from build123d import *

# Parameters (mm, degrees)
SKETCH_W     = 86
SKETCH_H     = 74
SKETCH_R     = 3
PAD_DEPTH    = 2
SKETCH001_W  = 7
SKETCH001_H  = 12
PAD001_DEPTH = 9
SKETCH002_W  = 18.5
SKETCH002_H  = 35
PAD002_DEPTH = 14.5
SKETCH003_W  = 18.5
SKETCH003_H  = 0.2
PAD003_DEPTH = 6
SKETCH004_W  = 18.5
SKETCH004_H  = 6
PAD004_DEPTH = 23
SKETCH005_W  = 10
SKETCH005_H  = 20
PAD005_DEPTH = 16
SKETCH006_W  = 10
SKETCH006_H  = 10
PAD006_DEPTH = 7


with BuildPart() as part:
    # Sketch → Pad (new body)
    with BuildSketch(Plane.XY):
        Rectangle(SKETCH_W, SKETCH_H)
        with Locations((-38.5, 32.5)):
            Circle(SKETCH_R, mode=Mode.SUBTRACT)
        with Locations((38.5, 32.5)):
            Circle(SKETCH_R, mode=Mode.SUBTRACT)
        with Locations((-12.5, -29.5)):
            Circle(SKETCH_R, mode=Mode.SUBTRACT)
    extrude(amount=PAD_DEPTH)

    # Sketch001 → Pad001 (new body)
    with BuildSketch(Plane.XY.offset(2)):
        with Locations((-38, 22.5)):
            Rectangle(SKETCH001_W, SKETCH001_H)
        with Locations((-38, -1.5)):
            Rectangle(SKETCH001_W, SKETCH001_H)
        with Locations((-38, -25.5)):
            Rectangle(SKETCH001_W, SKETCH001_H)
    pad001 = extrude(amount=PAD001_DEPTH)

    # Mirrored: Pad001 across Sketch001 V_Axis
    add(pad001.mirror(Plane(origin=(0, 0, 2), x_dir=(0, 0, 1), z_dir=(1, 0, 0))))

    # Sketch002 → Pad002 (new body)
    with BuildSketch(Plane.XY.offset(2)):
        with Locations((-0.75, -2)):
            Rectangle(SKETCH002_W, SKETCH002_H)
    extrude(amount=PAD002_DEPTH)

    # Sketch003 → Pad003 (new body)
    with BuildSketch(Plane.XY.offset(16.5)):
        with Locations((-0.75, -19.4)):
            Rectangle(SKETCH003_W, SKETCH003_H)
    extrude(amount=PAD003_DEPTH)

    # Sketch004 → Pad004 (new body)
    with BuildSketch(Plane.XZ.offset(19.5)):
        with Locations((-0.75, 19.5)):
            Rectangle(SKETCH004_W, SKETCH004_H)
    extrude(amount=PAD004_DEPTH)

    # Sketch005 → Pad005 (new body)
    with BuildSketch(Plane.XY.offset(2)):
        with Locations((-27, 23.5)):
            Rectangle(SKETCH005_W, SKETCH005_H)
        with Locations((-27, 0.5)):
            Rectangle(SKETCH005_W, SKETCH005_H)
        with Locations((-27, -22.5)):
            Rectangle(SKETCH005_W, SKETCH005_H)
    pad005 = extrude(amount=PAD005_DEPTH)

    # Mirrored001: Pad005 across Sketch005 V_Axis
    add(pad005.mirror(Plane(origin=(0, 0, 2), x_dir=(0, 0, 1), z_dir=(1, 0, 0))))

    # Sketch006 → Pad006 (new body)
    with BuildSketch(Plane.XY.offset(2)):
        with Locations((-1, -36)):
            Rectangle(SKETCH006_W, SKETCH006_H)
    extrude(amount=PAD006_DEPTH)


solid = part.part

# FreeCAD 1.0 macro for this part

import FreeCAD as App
import Part
import Sketcher

doc = App.newDocument("Part")
params = doc.addObject("Spreadsheet::Sheet", "Params")
for row, (alias, value) in enumerate([
    ("sketch1_diameter", "6 mm"),
    ("sketch1_width", "86 mm"),
    ("sketch1_height", "74 mm"),
    ("pad1_length", "2 mm"),
    ("sketch2_width", "7 mm"),
    ("sketch2_height", "12 mm"),
    ("pad2_length", "9 mm"),
    ("sketch3_height", "35 mm"),
    ("sketch3_width", "18.5 mm"),
    ("pad3_length", "14.5 mm"),
    ("sketch4_width", "18.5 mm"),
    ("sketch4_height", "0.2 mm"),
    ("pad4_length", "6 mm"),
    ("sketch5_height", "6 mm"),
    ("sketch5_width", "18.5 mm"),
    ("pad5_length", "23 mm"),
    ("sketch6_width", "10 mm"),
    ("sketch6_height", "20 mm"),
    ("pad6_length", "16 mm"),
    ("sketch7_width", "10 mm"),
    ("pad7_length", "7 mm"),
], start=1):
    params.set(f"A{row}", alias)
    params.set(f"B{row}", "=" + value)
    params.setAlias(f"B{row}", alias)

body = doc.addObject("PartDesign::Body", "Body")

sketch1 = body.newObject("Sketcher::SketchObject", "Sketch")
sketch1.AttachmentSupport = (doc.getObject("XY_Plane"), [""])
sketch1.MapMode = "FlatFace"
sketch1.addGeometry([
    Part.LineSegment(App.Vector(-43, 37, 0), App.Vector(-43, -37, 0)),
    Part.LineSegment(App.Vector(-43, -37, 0), App.Vector(43, -37, 0)),
    Part.LineSegment(App.Vector(43, -37, 0), App.Vector(43, 37, 0)),
    Part.LineSegment(App.Vector(43, 37, 0), App.Vector(-43, 37, 0)),
    Part.Circle(App.Vector(-12.5, -29.5, 0), App.Vector(0, 0, 1), 3),
    Part.Circle(App.Vector(-38.5, 32.5, 0), App.Vector(0, 0, 1), 3),
    Part.Circle(App.Vector(38.5, 32.5, 0), App.Vector(0, 0, 1), 3),
], False)
sketch1.addConstraint([
    Sketcher.Constraint("Coincident", 0, 2, 1, 1),
    Sketcher.Constraint("Coincident", 1, 2, 2, 1),
    Sketcher.Constraint("Coincident", 2, 2, 3, 1),
    Sketcher.Constraint("Coincident", 3, 2, 0, 1),
    Sketcher.Constraint("Vertical", 0),
    Sketcher.Constraint("Horizontal", 1),
    Sketcher.Constraint("Vertical", 2),
    Sketcher.Constraint("Horizontal", 3),
    Sketcher.Constraint("Equal", 4, 5),
    Sketcher.Constraint("Equal", 5, 6),
    Sketcher.Constraint("Symmetric", 0, 2, 2, 2, -1, 1),
    Sketcher.Constraint("Symmetric", 5, 3, 6, 3, -2),
    Sketcher.Constraint("Diameter", 4, 6.0),
    Sketcher.Constraint("DistanceX", 1, 1, 1, 2, 86.0),
    Sketcher.Constraint("DistanceY", 0, 2, 0, 1, 74.0),
    Sketcher.Constraint("DistanceX", 5, 3, 4, 3, 26.0),
    Sketcher.Constraint("DistanceY", 4, 3, 5, 3, 62.0),
    Sketcher.Constraint("DistanceX", 5, 3, 6, 3, 77.0),
    Sketcher.Constraint("DistanceY", 4, 3, -1, 1, 29.5),
])
sketch1.setExpression("Constraints[12]", "Params.sketch1_diameter")
sketch1.setExpression("Constraints[13]", "Params.sketch1_width")
sketch1.setExpression("Constraints[14]", "Params.sketch1_height")
pad1 = body.newObject("PartDesign::Pad", "Pad")
pad1.Profile = sketch1
pad1.setExpression("Length", "Params.pad1_length")

sketch2 = body.newObject("Sketcher::SketchObject", "Sketch001")
sketch2.AttachmentSupport = (doc.getObject("XY_Plane"), [""])
sketch2.MapMode = "FlatFace"
sketch2.AttachmentOffset = App.Placement(App.Vector(0, 0, 2), App.Rotation())
sketch2.addGeometry([
    Part.LineSegment(App.Vector(-42, 28, 0), App.Vector(-42, 16, 0)),
    Part.LineSegment(App.Vector(-42, 16, 0), App.Vector(-34, 16, 0)),
    Part.LineSegment(App.Vector(-34, 16, 0), App.Vector(-34, 28, 0)),
    Part.LineSegment(App.Vector(-34, 28, 0), App.Vector(-42, 28, 0)),
    Part.LineSegment(App.Vector(-42, 4, 0), App.Vector(-42, -8, 0)),
    Part.LineSegment(App.Vector(-42, -8, 0), App.Vector(-34, -8, 0)),
    Part.LineSegment(App.Vector(-34, -8, 0), App.Vector(-34, 4, 0)),
    Part.LineSegment(App.Vector(-34, 4, 0), App.Vector(-42, 4, 0)),
    Part.LineSegment(App.Vector(-42, -20, 0), App.Vector(-42, -32, 0)),
    Part.LineSegment(App.Vector(-42, -32, 0), App.Vector(-34, -32, 0)),
    Part.LineSegment(App.Vector(-34, -32, 0), App.Vector(-34, -20, 0)),
    Part.LineSegment(App.Vector(-34, -20, 0), App.Vector(-42, -20, 0)),
], False)
sketch2.addConstraint([
    Sketcher.Constraint("Coincident", 0, 2, 1, 1),
    Sketcher.Constraint("Coincident", 1, 2, 2, 1),
    Sketcher.Constraint("Coincident", 2, 2, 3, 1),
    Sketcher.Constraint("Coincident", 3, 2, 0, 1),
    Sketcher.Constraint("Coincident", 4, 2, 5, 1),
    Sketcher.Constraint("Coincident", 5, 2, 6, 1),
    Sketcher.Constraint("Coincident", 6, 2, 7, 1),
    Sketcher.Constraint("Coincident", 7, 2, 4, 1),
    Sketcher.Constraint("Coincident", 8, 2, 9, 1),
    Sketcher.Constraint("Coincident", 9, 2, 10, 1),
    Sketcher.Constraint("Coincident", 10, 2, 11, 1),
    Sketcher.Constraint("Coincident", 11, 2, 8, 1),
    Sketcher.Constraint("Vertical", 0),
    Sketcher.Constraint("Horizontal", 1),
    Sketcher.Constraint("Vertical", 2),
    Sketcher.Constraint("Horizontal", 3),
    Sketcher.Constraint("Vertical", 4),
    Sketcher.Constraint("Horizontal", 5),
    Sketcher.Constraint("Vertical", 6),
    Sketcher.Constraint("Horizontal", 7),
    Sketcher.Constraint("Vertical", 8),
    Sketcher.Constraint("Horizontal", 9),
    Sketcher.Constraint("Vertical", 10),
    Sketcher.Constraint("Horizontal", 11),
    Sketcher.Constraint("Vertical", 3, 2, 4, 2),
    Sketcher.Constraint("Vertical", 2, 2, 5, 2),
    Sketcher.Constraint("Vertical", 7, 2, 8, 2),
    Sketcher.Constraint("Vertical", 6, 2, 9, 2),
    Sketcher.Constraint("Equal", 2, 4),
    Sketcher.Constraint("Equal", 6, 8),
    Sketcher.Constraint("DistanceX", 1, 1, 1, 2, 7.0),
    Sketcher.Constraint("DistanceY", 0, 2, 0, 1, 12.0),
    Sketcher.Constraint("DistanceY", 4, 2, 0, 2, 24.0),
    Sketcher.Constraint("DistanceY", 8, 2, 4, 2, 24.0),
    Sketcher.Constraint("DistanceX", 0, 2, -1, 1, 41.5),
    Sketcher.Constraint("DistanceY", -1, 1, 0, 2, 16.5),
])
sketch2.setExpression("Constraints[30]", "Params.sketch2_width")
sketch2.setExpression("Constraints[31]", "Params.sketch2_height")
pad2 = body.newObject("PartDesign::Pad", "Pad001")
pad2.Profile = sketch2
pad2.setExpression("Length", "Params.pad2_length")
doc.recompute()

mirrored = body.newObject("PartDesign::Mirrored", "Mirrored")
mirrored.Originals = [pad2]
mirrored.MirrorPlane = (doc.getObject("YZ_Plane"), [""])
body.Tip = mirrored

sketch3 = body.newObject("Sketcher::SketchObject", "Sketch002")
sketch3.AttachmentSupport = (doc.getObject("XY_Plane"), [""])
sketch3.MapMode = "FlatFace"
sketch3.AttachmentOffset = App.Placement(App.Vector(0, 0, 2), App.Rotation())
sketch3.addGeometry([
    Part.LineSegment(App.Vector(-10, 16, 0), App.Vector(-10, -20, 0)),
    Part.LineSegment(App.Vector(-10, -20, 0), App.Vector(8, -20, 0)),
    Part.LineSegment(App.Vector(8, -20, 0), App.Vector(8, 16, 0)),
    Part.LineSegment(App.Vector(8, 16, 0), App.Vector(-10, 16, 0)),
], False)
sketch3.addConstraint([
    Sketcher.Constraint("Coincident", 0, 2, 1, 1),
    Sketcher.Constraint("Coincident", 1, 2, 2, 1),
    Sketcher.Constraint("Coincident", 2, 2, 3, 1),
    Sketcher.Constraint("Coincident", 3, 2, 0, 1),
    Sketcher.Constraint("Vertical", 0),
    Sketcher.Constraint("Horizontal", 1),
    Sketcher.Constraint("Vertical", 2),
    Sketcher.Constraint("Horizontal", 3),
    Sketcher.Constraint("DistanceY", 0, 2, 0, 1, 35.0),
    Sketcher.Constraint("DistanceX", 1, 1, 1, 2, 18.5),
    Sketcher.Constraint("DistanceX", 0, 2, -1, 1, 10.0),
    Sketcher.Constraint("DistanceY", 0, 2, -1, 1, 19.5),
])
sketch3.setExpression("Constraints[8]", "Params.sketch3_height")
sketch3.setExpression("Constraints[9]", "Params.sketch3_width")
pad3 = body.newObject("PartDesign::Pad", "Pad002")
pad3.Profile = sketch3
pad3.setExpression("Length", "Params.pad3_length")

sketch4 = body.newObject("Sketcher::SketchObject", "Sketch003")
sketch4.AttachmentSupport = (doc.getObject("XY_Plane"), [""])
sketch4.MapMode = "FlatFace"
sketch4.AttachmentOffset = App.Placement(App.Vector(0, 0, 16.5), App.Rotation())
sketch4.addGeometry([
    Part.LineSegment(App.Vector(-10, -19.3, 0), App.Vector(-10, -19.5, 0)),
    Part.LineSegment(App.Vector(-10, -19.5, 0), App.Vector(8.5, -19.5, 0)),
    Part.LineSegment(App.Vector(8.5, -19.5, 0), App.Vector(8.5, -19.3, 0)),
    Part.LineSegment(App.Vector(8.5, -19.3, 0), App.Vector(-10, -19.3, 0)),
], False)
sketch4.addConstraint([
    Sketcher.Constraint("Coincident", 0, 2, 1, 1),
    Sketcher.Constraint("Coincident", 1, 2, 2, 1),
    Sketcher.Constraint("Coincident", 2, 2, 3, 1),
    Sketcher.Constraint("Coincident", 3, 2, 0, 1),
    Sketcher.Constraint("Vertical", 0),
    Sketcher.Constraint("Horizontal", 1),
    Sketcher.Constraint("Vertical", 2),
    Sketcher.Constraint("Horizontal", 3),
    Sketcher.Constraint("DistanceX", 1, 1, 1, 2, 18.5),
    Sketcher.Constraint("DistanceY", 0, 2, 0, 1, 0.2),
    Sketcher.Constraint("DistanceX", 0, 2, -1, 1, 10.0),
    Sketcher.Constraint("DistanceY", 0, 2, -1, 1, 19.5),
])
sketch4.setExpression("Constraints[8]", "Params.sketch4_width")
sketch4.setExpression("Constraints[9]", "Params.sketch4_height")
pad4 = body.newObject("PartDesign::Pad", "Pad003")
pad4.Profile = sketch4
pad4.setExpression("Length", "Params.pad4_length")

sketch5 = body.newObject("Sketcher::SketchObject", "Sketch004")
sketch5.AttachmentSupport = (doc.getObject("XZ_Plane"), [""])
sketch5.MapMode = "FlatFace"
sketch5.AttachmentOffset = App.Placement(App.Vector(0, 0, 19.5), App.Rotation())
sketch5.addGeometry([
    Part.LineSegment(App.Vector(-10, 22, 0), App.Vector(-10, 16, 0)),
    Part.LineSegment(App.Vector(-10, 16, 0), App.Vector(8, 16, 0)),
    Part.LineSegment(App.Vector(8, 16, 0), App.Vector(8, 22, 0)),
    Part.LineSegment(App.Vector(8, 22, 0), App.Vector(-10, 22, 0)),
], False)
sketch5.addConstraint([
    Sketcher.Constraint("Coincident", 0, 2, 1, 1),
    Sketcher.Constraint("Coincident", 1, 2, 2, 1),
    Sketcher.Constraint("Coincident", 2, 2, 3, 1),
    Sketcher.Constraint("Coincident", 3, 2, 0, 1),
    Sketcher.Constraint("Vertical", 0),
    Sketcher.Constraint("Horizontal", 1),
    Sketcher.Constraint("Vertical", 2),
    Sketcher.Constraint("Horizontal", 3),
    Sketcher.Constraint("DistanceY", 0, 2, 0, 1, 6.0),
    Sketcher.Constraint("DistanceX", 1, 1, 1, 2, 18.5),
    Sketcher.Constraint("DistanceX", 0, 2, -1, 1, 10.0),
    Sketcher.Constraint("DistanceY", -1, 1, 0, 2, 16.5),
])
sketch5.setExpression("Constraints[8]", "Params.sketch5_height")
sketch5.setExpression("Constraints[9]", "Params.sketch5_width")
pad5 = body.newObject("PartDesign::Pad", "Pad004")
pad5.Profile = sketch5
pad5.setExpression("Length", "Params.pad5_length")

sketch6 = body.newObject("Sketcher::SketchObject", "Sketch005")
sketch6.AttachmentSupport = (doc.getObject("XY_Plane"), [""])
sketch6.MapMode = "FlatFace"
sketch6.AttachmentOffset = App.Placement(App.Vector(0, 0, 2), App.Rotation())
sketch6.addGeometry([
    Part.LineSegment(App.Vector(-32, 34, 0), App.Vector(-32, 14, 0)),
    Part.LineSegment(App.Vector(-32, 14, 0), App.Vector(-22, 14, 0)),
    Part.LineSegment(App.Vector(-22, 14, 0), App.Vector(-22, 34, 0)),
    Part.LineSegment(App.Vector(-22, 34, 0), App.Vector(-32, 34, 0)),
    Part.LineSegment(App.Vector(-32, 10, 0), App.Vector(-32, -10, 0)),
    Part.LineSegment(App.Vector(-32, -10, 0), App.Vector(-22, -10, 0)),
    Part.LineSegment(App.Vector(-22, -10, 0), App.Vector(-22, 10, 0)),
    Part.LineSegment(App.Vector(-22, 10, 0), App.Vector(-32, 10, 0)),
    Part.LineSegment(App.Vector(-32, -12, 0), App.Vector(-32, -32, 0)),
    Part.LineSegment(App.Vector(-32, -32, 0), App.Vector(-22, -32, 0)),
    Part.LineSegment(App.Vector(-22, -32, 0), App.Vector(-22, -12, 0)),
    Part.LineSegment(App.Vector(-22, -12, 0), App.Vector(-32, -12, 0)),
], False)
sketch6.addConstraint([
    Sketcher.Constraint("Coincident", 0, 2, 1, 1),
    Sketcher.Constraint("Coincident", 1, 2, 2, 1),
    Sketcher.Constraint("Coincident", 2, 2, 3, 1),
    Sketcher.Constraint("Coincident", 3, 2, 0, 1),
    Sketcher.Constraint("Coincident", 4, 2, 5, 1),
    Sketcher.Constraint("Coincident", 5, 2, 6, 1),
    Sketcher.Constraint("Coincident", 6, 2, 7, 1),
    Sketcher.Constraint("Coincident", 7, 2, 4, 1),
    Sketcher.Constraint("Coincident", 8, 2, 9, 1),
    Sketcher.Constraint("Coincident", 9, 2, 10, 1),
    Sketcher.Constraint("Coincident", 10, 2, 11, 1),
    Sketcher.Constraint("Coincident", 11, 2, 8, 1),
    Sketcher.Constraint("Vertical", 0),
    Sketcher.Constraint("Horizontal", 1),
    Sketcher.Constraint("Vertical", 2),
    Sketcher.Constraint("Horizontal", 3),
    Sketcher.Constraint("Vertical", 4),
    Sketcher.Constraint("Horizontal", 5),
    Sketcher.Constraint("Vertical", 6),
    Sketcher.Constraint("Horizontal", 7),
    Sketcher.Constraint("Vertical", 8),
    Sketcher.Constraint("Horizontal", 9),
    Sketcher.Constraint("Vertical", 10),
    Sketcher.Constraint("Horizontal", 11),
    Sketcher.Constraint("Vertical", 3, 2, 4, 2),
    Sketcher.Constraint("Vertical", 2, 2, 5, 2),
    Sketcher.Constraint("Vertical", 7, 2, 8, 2),
    Sketcher.Constraint("Vertical", 6, 2, 9, 2),
    Sketcher.Constraint("Equal", 2, 4),
    Sketcher.Constraint("Equal", 6, 8),
    Sketcher.Constraint("DistanceX", 1, 1, 1, 2, 10.0),
    Sketcher.Constraint("DistanceY", 0, 2, 0, 1, 20.0),
    Sketcher.Constraint("DistanceX", 0, 2, -1, 1, 32.0),
    Sketcher.Constraint("DistanceY", 4, 2, 0, 2, 23.0),
    Sketcher.Constraint("DistanceY", 8, 2, 4, 2, 23.0),
    Sketcher.Constraint("DistanceY", -1, 1, 0, 2, 13.5),
])
sketch6.setExpression("Constraints[30]", "Params.sketch6_width")
sketch6.setExpression("Constraints[31]", "Params.sketch6_height")
pad6 = body.newObject("PartDesign::Pad", "Pad005")
pad6.Profile = sketch6
pad6.setExpression("Length", "Params.pad6_length")
doc.recompute()

mirrored2 = body.newObject("PartDesign::Mirrored", "Mirrored001")
mirrored2.Originals = [pad6]
mirrored2.MirrorPlane = (doc.getObject("YZ_Plane"), [""])
body.Tip = mirrored2

sketch7 = body.newObject("Sketcher::SketchObject", "Sketch006")
sketch7.AttachmentSupport = (doc.getObject("XY_Plane"), [""])
sketch7.MapMode = "FlatFace"
sketch7.AttachmentOffset = App.Placement(App.Vector(0, 0, 2), App.Rotation())
sketch7.addGeometry([
    Part.LineSegment(App.Vector(-6, -31, 0), App.Vector(-6, -41, 0)),
    Part.LineSegment(App.Vector(-6, -41, 0), App.Vector(4, -41, 0)),
    Part.LineSegment(App.Vector(4, -41, 0), App.Vector(4, -31, 0)),
    Part.LineSegment(App.Vector(4, -31, 0), App.Vector(-6, -31, 0)),
], False)
sketch7.addConstraint([
    Sketcher.Constraint("Coincident", 0, 2, 1, 1),
    Sketcher.Constraint("Coincident", 1, 2, 2, 1),
    Sketcher.Constraint("Coincident", 2, 2, 3, 1),
    Sketcher.Constraint("Coincident", 3, 2, 0, 1),
    Sketcher.Constraint("Vertical", 0),
    Sketcher.Constraint("Horizontal", 1),
    Sketcher.Constraint("Vertical", 2),
    Sketcher.Constraint("Horizontal", 3),
    Sketcher.Constraint("Equal", 3, 0),
    Sketcher.Constraint("DistanceX", 1, 1, 1, 2, 10.0),
    Sketcher.Constraint("DistanceX", 0, 2, -1, 1, 6.0),
    Sketcher.Constraint("DistanceY", 0, 2, -1, 1, 41.0),
])
sketch7.setExpression("Constraints[9]", "Params.sketch7_width")
pad7 = body.newObject("PartDesign::Pad", "Pad006")
pad7.Profile = sketch7
pad7.setExpression("Length", "Params.pad7_length")

doc.recompute()
